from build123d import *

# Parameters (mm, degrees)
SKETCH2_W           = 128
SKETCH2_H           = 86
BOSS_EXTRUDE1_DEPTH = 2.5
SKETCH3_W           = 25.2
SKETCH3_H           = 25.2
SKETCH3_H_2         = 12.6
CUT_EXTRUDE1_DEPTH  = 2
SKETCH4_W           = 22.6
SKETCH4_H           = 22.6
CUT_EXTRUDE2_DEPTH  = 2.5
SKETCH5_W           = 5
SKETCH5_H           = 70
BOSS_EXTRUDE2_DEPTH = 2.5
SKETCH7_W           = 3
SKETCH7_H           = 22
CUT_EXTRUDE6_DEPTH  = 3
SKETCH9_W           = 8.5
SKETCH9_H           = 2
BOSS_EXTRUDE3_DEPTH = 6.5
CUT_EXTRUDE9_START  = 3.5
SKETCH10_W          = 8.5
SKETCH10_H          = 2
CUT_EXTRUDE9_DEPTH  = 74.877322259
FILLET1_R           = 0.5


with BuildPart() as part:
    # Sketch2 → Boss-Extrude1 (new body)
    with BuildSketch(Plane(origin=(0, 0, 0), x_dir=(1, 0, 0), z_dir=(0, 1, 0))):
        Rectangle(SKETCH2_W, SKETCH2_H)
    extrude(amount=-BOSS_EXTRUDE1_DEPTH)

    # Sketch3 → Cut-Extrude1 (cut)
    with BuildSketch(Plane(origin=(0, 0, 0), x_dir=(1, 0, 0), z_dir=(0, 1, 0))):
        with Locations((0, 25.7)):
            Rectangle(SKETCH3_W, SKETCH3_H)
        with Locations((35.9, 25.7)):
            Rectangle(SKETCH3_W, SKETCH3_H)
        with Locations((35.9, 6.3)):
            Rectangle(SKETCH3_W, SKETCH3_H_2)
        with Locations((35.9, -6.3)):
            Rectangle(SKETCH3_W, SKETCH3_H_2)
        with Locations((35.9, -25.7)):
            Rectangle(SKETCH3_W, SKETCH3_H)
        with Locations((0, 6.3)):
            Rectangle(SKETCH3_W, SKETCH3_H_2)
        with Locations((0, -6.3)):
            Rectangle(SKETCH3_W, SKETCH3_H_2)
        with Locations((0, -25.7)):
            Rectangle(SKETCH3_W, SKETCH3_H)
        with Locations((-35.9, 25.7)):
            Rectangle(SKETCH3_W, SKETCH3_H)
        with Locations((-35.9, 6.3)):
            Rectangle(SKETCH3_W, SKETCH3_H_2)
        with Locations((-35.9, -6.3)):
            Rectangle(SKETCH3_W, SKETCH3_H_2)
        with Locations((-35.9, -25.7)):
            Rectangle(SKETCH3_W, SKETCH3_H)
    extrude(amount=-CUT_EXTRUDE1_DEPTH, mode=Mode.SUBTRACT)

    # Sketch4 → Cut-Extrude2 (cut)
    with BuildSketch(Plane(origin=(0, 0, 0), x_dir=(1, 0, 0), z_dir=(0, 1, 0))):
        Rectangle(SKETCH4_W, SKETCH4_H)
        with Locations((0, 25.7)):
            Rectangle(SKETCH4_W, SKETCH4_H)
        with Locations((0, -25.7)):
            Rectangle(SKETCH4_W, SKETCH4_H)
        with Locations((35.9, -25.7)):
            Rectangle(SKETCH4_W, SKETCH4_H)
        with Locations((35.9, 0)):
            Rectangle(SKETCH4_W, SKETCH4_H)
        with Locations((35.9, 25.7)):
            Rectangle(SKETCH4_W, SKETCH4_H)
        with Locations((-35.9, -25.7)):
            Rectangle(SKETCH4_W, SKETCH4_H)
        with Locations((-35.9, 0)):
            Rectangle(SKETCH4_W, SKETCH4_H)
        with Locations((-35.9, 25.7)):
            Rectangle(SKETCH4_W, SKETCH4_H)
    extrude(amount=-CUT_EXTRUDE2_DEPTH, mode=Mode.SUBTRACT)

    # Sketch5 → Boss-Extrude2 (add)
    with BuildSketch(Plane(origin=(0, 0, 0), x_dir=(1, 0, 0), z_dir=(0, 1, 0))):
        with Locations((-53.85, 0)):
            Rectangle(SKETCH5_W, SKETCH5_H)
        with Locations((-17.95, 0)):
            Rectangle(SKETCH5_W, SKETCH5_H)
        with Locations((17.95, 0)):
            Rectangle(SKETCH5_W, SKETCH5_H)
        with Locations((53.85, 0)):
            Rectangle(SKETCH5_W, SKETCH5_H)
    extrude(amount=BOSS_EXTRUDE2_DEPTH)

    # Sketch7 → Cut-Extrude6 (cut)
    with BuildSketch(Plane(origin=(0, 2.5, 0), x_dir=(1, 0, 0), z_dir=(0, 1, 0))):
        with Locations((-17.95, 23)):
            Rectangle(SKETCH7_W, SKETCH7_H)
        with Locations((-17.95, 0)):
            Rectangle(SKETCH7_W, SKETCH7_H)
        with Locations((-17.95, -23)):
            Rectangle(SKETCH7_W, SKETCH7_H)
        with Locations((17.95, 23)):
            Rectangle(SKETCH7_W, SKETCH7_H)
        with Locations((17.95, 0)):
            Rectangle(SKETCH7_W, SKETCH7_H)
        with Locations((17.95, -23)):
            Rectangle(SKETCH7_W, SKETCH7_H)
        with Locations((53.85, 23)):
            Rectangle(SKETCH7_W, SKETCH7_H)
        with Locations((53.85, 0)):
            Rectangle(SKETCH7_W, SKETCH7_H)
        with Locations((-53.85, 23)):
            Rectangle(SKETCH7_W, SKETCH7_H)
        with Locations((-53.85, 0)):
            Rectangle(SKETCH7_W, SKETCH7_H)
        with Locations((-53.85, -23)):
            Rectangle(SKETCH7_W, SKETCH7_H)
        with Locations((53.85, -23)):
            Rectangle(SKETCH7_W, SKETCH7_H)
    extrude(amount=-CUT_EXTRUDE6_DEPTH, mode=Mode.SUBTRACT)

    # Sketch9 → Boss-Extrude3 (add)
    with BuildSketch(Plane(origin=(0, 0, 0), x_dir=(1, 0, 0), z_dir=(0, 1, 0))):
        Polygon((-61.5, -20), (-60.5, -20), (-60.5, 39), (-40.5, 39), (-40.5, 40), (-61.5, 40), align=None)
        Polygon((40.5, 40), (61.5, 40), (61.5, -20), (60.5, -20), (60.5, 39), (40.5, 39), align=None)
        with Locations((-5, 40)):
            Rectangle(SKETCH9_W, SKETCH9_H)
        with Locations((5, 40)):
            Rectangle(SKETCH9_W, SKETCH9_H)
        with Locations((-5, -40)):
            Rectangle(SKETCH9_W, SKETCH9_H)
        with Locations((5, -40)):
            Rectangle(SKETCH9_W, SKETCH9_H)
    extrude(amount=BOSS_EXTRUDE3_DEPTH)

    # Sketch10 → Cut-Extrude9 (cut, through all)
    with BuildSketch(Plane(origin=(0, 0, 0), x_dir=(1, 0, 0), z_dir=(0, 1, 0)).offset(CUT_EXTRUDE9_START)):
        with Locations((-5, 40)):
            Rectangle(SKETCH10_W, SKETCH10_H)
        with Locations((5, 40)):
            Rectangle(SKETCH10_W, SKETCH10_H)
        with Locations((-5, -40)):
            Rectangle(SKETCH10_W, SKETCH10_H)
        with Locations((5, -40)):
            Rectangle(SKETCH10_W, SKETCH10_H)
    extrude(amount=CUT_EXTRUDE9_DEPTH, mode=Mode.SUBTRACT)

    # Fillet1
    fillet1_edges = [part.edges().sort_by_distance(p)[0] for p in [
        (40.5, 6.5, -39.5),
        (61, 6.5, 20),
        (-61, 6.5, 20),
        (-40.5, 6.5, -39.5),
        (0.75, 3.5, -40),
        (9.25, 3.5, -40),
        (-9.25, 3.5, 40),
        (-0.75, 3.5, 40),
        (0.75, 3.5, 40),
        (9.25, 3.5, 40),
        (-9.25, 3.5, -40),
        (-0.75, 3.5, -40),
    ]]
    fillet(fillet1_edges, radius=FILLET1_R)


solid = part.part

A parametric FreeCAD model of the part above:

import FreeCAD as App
import Part
import Sketcher

V = App.Vector


def edges_at(feature, points):
    """Names of the edges that pass closest to the given points."""
    edges = feature.Shape.Edges
    near = lambda p: min(range(len(edges)), key=lambda i: edges[i].distToShape(Part.Vertex(*p))[0])
    return sorted({f"Edge{near(p) + 1}" for p in points})

doc = App.newDocument("Part")
body = doc.addObject("PartDesign::Body", "Body")

sketch1 = body.newObject("Sketcher::SketchObject", "Sketch")
sketch1.AttachmentSupport = (doc.getObject("XZ_Plane"), [""])
sketch1.MapMode = "FlatFace"
sketch1.addGeometry([
    Part.LineSegment(V(-64, -43, 0), V(-64, 43, 0)),
    Part.LineSegment(V(-64, 43, 0), V(64, 43, 0)),
    Part.LineSegment(V(64, 43, 0), V(64, -43, 0)),
    Part.LineSegment(V(64, -43, 0), V(-64, -43, 0)),
], False)
sketch1.addConstraint([
    Sketcher.Constraint("Coincident", 0, 2, 1, 1),
    Sketcher.Constraint("Coincident", 1, 2, 2, 1),
    Sketcher.Constraint("Coincident", 2, 2, 3, 1),
    Sketcher.Constraint("Coincident", 3, 2, 0, 1),
    Sketcher.Constraint("Vertical", 0),
    Sketcher.Constraint("Horizontal", 1),
    Sketcher.Constraint("Vertical", 2),
    Sketcher.Constraint("Horizontal", 3),
    Sketcher.Constraint("Symmetric", 0, 2, 2, 2, -1, 1),
    Sketcher.Constraint("DistanceX", 1, 1, 1, 2, 128.0),
    Sketcher.Constraint("DistanceY", 0, 1, 0, 2, 86.0),
])
pad1 = body.newObject("PartDesign::Pad", "Pad")
pad1.Profile = sketch1
pad1.Length = 2.5

sketch2 = body.newObject("Sketcher::SketchObject", "Sketch001")
sketch2.AttachmentSupport = (doc.getObject("XZ_Plane"), [""])
sketch2.MapMode = "FlatFace"
sketch2.addGeometry([
    Part.LineSegment(V(-12.6, -38.3, 0), V(-12.6, -13.1, 0)),
    Part.LineSegment(V(-12.6, -13.1, 0), V(12.6, -13.1, 0)),
    Part.LineSegment(V(12.6, -13.1, 0), V(12.6, -38.3, 0)),
    Part.LineSegment(V(12.6, -38.3, 0), V(-12.6, -38.3, 0)),
    Part.LineSegment(V(23.3, -38.3, 0), V(23.3, -13.1, 0)),
    Part.LineSegment(V(23.3, -13.1, 0), V(48.5, -13.1, 0)),
    Part.LineSegment(V(48.5, -13.1, 0), V(48.5, -38.3, 0)),
    Part.LineSegment(V(48.5, -38.3, 0), V(23.3, -38.3, 0)),
    Part.LineSegment(V(23.3, -12.6, 0), V(23.3, 12.6, 0)),
    Part.LineSegment(V(23.3, 12.6, 0), V(48.5, 12.6, 0)),
    Part.LineSegment(V(48.5, 12.6, 0), V(48.5, -12.6, 0)),
    Part.LineSegment(V(48.5, -12.6, 0), V(23.3, -12.6, 0)),
    Part.LineSegment(V(23.3, 13.1, 0), V(23.3, 38.3, 0)),
    Part.LineSegment(V(23.3, 38.3, 0), V(48.5, 38.3, 0)),
    Part.LineSegment(V(48.5, 38.3, 0), V(48.5, 13.1, 0)),
    Part.LineSegment(V(48.5, 13.1, 0), V(23.3, 13.1, 0)),
    Part.LineSegment(V(-12.6, -12.6, 0), V(-12.6, 12.6, 0)),
    Part.LineSegment(V(-12.6, 12.6, 0), V(12.6, 12.6, 0)),
    Part.LineSegment(V(12.6, 12.6, 0), V(12.6, -12.6, 0)),
    Part.LineSegment(V(12.6, -12.6, 0), V(-12.6, -12.6, 0)),
    Part.LineSegment(V(-12.6, 13.1, 0), V(-12.6, 38.3, 0)),
    Part.LineSegment(V(-12.6, 38.3, 0), V(12.6, 38.3, 0)),
    Part.LineSegment(V(12.6, 38.3, 0), V(12.6, 13.1, 0)),
    Part.LineSegment(V(12.6, 13.1, 0), V(-12.6, 13.1, 0)),
    Part.LineSegment(V(-48.5, -38.3, 0), V(-48.5, -13.1, 0)),
    Part.LineSegment(V(-48.5, -13.1, 0), V(-23.3, -13.1, 0)),
    Part.LineSegment(V(-23.3, -13.1, 0), V(-23.3, -38.3, 0)),
    Part.LineSegment(V(-23.3, -38.3, 0), V(-48.5, -38.3, 0)),
    Part.LineSegment(V(-48.5, -12.6, 0), V(-48.5, 12.6, 0)),
    Part.LineSegment(V(-48.5, 12.6, 0), V(-23.3, 12.6, 0)),
    Part.LineSegment(V(-23.3, 12.6, 0), V(-23.3, -12.6, 0)),
    Part.LineSegment(V(-23.3, -12.6, 0), V(-48.5, -12.6, 0)),
    Part.LineSegment(V(-48.5, 13.1, 0), V(-48.5, 38.3, 0)),
    Part.LineSegment(V(-48.5, 38.3, 0), V(-23.3, 38.3, 0)),
    Part.LineSegment(V(-23.3, 38.3, 0), V(-23.3, 13.1, 0)),
    Part.LineSegment(V(-23.3, 13.1, 0), V(-48.5, 13.1, 0)),
], False)
sketch2.addConstraint([
    Sketcher.Constraint("Coincident", 0, 2, 1, 1),
    Sketcher.Constraint("Coincident", 1, 2, 2, 1),
    Sketcher.Constraint("Coincident", 2, 2, 3, 1),
    Sketcher.Constraint("Coincident", 3, 2, 0, 1),
    Sketcher.Constraint("Coincident", 4, 2, 5, 1),
    Sketcher.Constraint("Coincident", 5, 2, 6, 1),
    Sketcher.Constraint("Coincident", 6, 2, 7, 1),
    Sketcher.Constraint("Coincident", 7, 2, 4, 1),
    Sketcher.Constraint("Coincident", 8, 2, 9, 1),
    Sketcher.Constraint("Coincident", 9, 2, 10, 1),
    Sketcher.Constraint("Coincident", 10, 2, 11, 1),
    Sketcher.Constraint("Coincident", 11, 2, 8, 1),
    Sketcher.Constraint("Coincident", 12, 2, 13, 1),
    Sketcher.Constraint("Coincident", 13, 2, 14, 1),
    Sketcher.Constraint("Coincident", 14, 2, 15, 1),
    Sketcher.Constraint("Coincident", 15, 2, 12, 1),
    Sketcher.Constraint("Coincident", 16, 2, 17, 1),
    Sketcher.Constraint("Coincident", 17, 2, 18, 1),
    Sketcher.Constraint("Coincident", 18, 2, 19, 1),
    Sketcher.Constraint("Coincident", 19, 2, 16, 1),
    Sketcher.Constraint("Coincident", 20, 2, 21, 1),
    Sketcher.Constraint("Coincident", 21, 2, 22, 1),
    Sketcher.Constraint("Coincident", 22, 2, 23, 1),
    Sketcher.Constraint("Coincident", 23, 2, 20, 1),
    Sketcher.Constraint("Coincident", 24, 2, 25, 1),
    Sketcher.Constraint("Coincident", 25, 2, 26, 1),
    Sketcher.Constraint("Coincident", 26, 2, 27, 1),
    Sketcher.Constraint("Coincident", 27, 2, 24, 1),
    Sketcher.Constraint("Coincident", 28, 2, 29, 1),
    Sketcher.Constraint("Coincident", 29, 2, 30, 1),
    Sketcher.Constraint("Coincident", 30, 2, 31, 1),
    Sketcher.Constraint("Coincident", 31, 2, 28, 1),
    Sketcher.Constraint("Coincident", 32, 2, 33, 1),
    Sketcher.Constraint("Coincident", 33, 2, 34, 1),
    Sketcher.Constraint("Coincident", 34, 2, 35, 1),
    Sketcher.Constraint("Coincident", 35, 2, 32, 1),
    Sketcher.Constraint("Vertical", 0),
    Sketcher.Constraint("Horizontal", 1),
    Sketcher.Constraint("Vertical", 2),
    Sketcher.Constraint("Horizontal", 3),
    Sketcher.Constraint("Vertical", 4),
    Sketcher.Constraint("Horizontal", 5),
    Sketcher.Constraint("Vertical", 6),
    Sketcher.Constraint("Horizontal", 7),
    Sketcher.Constraint("Vertical", 8),
    Sketcher.Constraint("Horizontal", 9),
    Sketcher.Constraint("Vertical", 10),
    Sketcher.Constraint("Horizontal", 11),
    Sketcher.Constraint("Vertical", 12),
    Sketcher.Constraint("Horizontal", 13),
    Sketcher.Constraint("Vertical", 14),
    Sketcher.Constraint("Horizontal", 15),
    Sketcher.Constraint("Vertical", 16),
    Sketcher.Constraint("Horizontal", 17),
    Sketcher.Constraint("Vertical", 18),
    Sketcher.Constraint("Horizontal", 19),
    Sketcher.Constraint("Vertical", 20),
    Sketcher.Constraint("Horizontal", 21),
    Sketcher.Constraint("Vertical", 22),
    Sketcher.Constraint("Horizontal", 23),
    Sketcher.Constraint("Vertical", 24),
    Sketcher.Constraint("Horizontal", 25),
    Sketcher.Constraint("Vertical", 26),
    Sketcher.Constraint("Horizontal", 27),
    Sketcher.Constraint("Vertical", 28),
    Sketcher.Constraint("Horizontal", 29),
    Sketcher.Constraint("Vertical", 30),
    Sketcher.Constraint("Horizontal", 31),
    Sketcher.Constraint("Vertical", 32),
    Sketcher.Constraint("Horizontal", 33),
    Sketcher.Constraint("Vertical", 34),
    Sketcher.Constraint("Horizontal", 35),
    Sketcher.Constraint("Symmetric", 16, 2, 18, 2, -1, 1),
    Sketcher.Constraint("Symmetric", 2, 2, 20, 2, -1, 1),
    Sketcher.Constraint("Symmetric", 0, 2, 22, 2, -1, 1),
    Sketcher.Constraint("Symmetric", 14, 2, 24, 2, -1, 1),
    Sketcher.Constraint("Symmetric", 12, 2, 26, 2, -1, 1),
    Sketcher.Constraint("Symmetric", 10, 2, 28, 2, -1, 1),
    Sketcher.Constraint("Symmetric", 8, 2, 30, 2, -1, 1),
    Sketcher.Constraint("Symmetric", 6, 2, 32, 2, -1, 1),
    Sketcher.Constraint("Symmetric", 4, 2, 34, 2, -1, 1),
    Sketcher.Constraint("Symmetric", 5, 2, 24, 2, -2),
    Sketcher.Constraint("Symmetric", 7, 2, 26, 2, -2),
    Sketcher.Constraint("Horizontal", 1, 2, 4, 2),
    Sketcher.Constraint("Horizontal", 3, 2, 6, 2),
    Sketcher.Constraint("Horizontal", 9, 2, 16, 2),
    Sketcher.Constraint("Horizontal", 11, 2, 18, 2),
    Sketcher.Constraint("Vertical", 7, 2, 8, 2),
    Sketcher.Constraint("Vertical", 6, 2, 9, 2),
    Sketcher.Constraint("Vertical", 3, 2, 16, 2),
    Sketcher.Constraint("Vertical", 2, 2, 17, 2),
    Sketcher.Constraint("Equal", 3, 5),
    Sketcher.Constraint("Equal", 35, 0),
    Sketcher.Constraint("Equal", 6, 8),
    Sketcher.Constraint("DistanceX", 1, 1, 1, 2, 25.2),
    Sketcher.Constraint("DistanceY", 0, 2, -1, 1, 13.1),
    Sketcher.Constraint("DistanceX", -1, 1, 4, 2, 23.3),
])
pocket1 = body.newObject("PartDesign::Pocket", "Pocket")
pocket1.Profile = sketch2
pocket1.Length = 2
pocket1.Reversed = True

sketch3 = body.newObject("Sketcher::SketchObject", "Sketch002")
sketch3.AttachmentSupport = (doc.getObject("XZ_Plane"), [""])
sketch3.MapMode = "FlatFace"
sketch3.addGeometry([
    Part.LineSegment(V(-11.3, -11.3, 0), V(-11.3, 11.3, 0)),
    Part.LineSegment(V(-11.3, 11.3, 0), V(11.3, 11.3, 0)),
    Part.LineSegment(V(11.3, 11.3, 0), V(11.3, -11.3, 0)),
    Part.LineSegment(V(11.3, -11.3, 0), V(-11.3, -11.3, 0)),
    Part.LineSegment(V(-11.3, -37, 0), V(-11.3, -14.4, 0)),
    Part.LineSegment(V(-11.3, -14.4, 0), V(11.3, -14.4, 0)),
    Part.LineSegment(V(11.3, -14.4, 0), V(11.3, -37, 0)),
    Part.LineSegment(V(11.3, -37, 0), V(-11.3, -37, 0)),
    Part.LineSegment(V(-11.3, 14.4, 0), V(-11.3, 37, 0)),
    Part.LineSegment(V(-11.3, 37, 0), V(11.3, 37, 0)),
    Part.LineSegment(V(11.3, 37, 0), V(11.3, 14.4, 0)),
    Part.LineSegment(V(11.3, 14.4, 0), V(-11.3, 14.4, 0)),
    Part.LineSegment(V(24.6, 14.4, 0), V(24.6, 37, 0)),
    Part.LineSegment(V(24.6, 37, 0), V(47.2, 37, 0)),
    Part.LineSegment(V(47.2, 37, 0), V(47.2, 14.4, 0)),
    Part.LineSegment(V(47.2, 14.4, 0), V(24.6, 14.4, 0)),
    Part.LineSegment(V(24.6, -11.3, 0), V(24.6, 11.3, 0)),
    Part.LineSegment(V(24.6, 11.3, 0), V(47.2, 11.3, 0)),
    Part.LineSegment(V(47.2, 11.3, 0), V(47.2, -11.3, 0)),
    Part.LineSegment(V(47.2, -11.3, 0), V(24.6, -11.3, 0)),
    Part.LineSegment(V(24.6, -37, 0), V(24.6, -14.4, 0)),
    Part.LineSegment(V(24.6, -14.4, 0), V(47.2, -14.4, 0)),
    Part.LineSegment(V(47.2, -14.4, 0), V(47.2, -37, 0)),
    Part.LineSegment(V(47.2, -37, 0), V(24.6, -37, 0)),
    Part.LineSegment(V(-47.2, 14.4, 0), V(-47.2, 37, 0)),
    Part.LineSegment(V(-47.2, 37, 0), V(-24.6, 37, 0)),
    Part.LineSegment(V(-24.6, 37, 0), V(-24.6, 14.4, 0)),
    Part.LineSegment(V(-24.6, 14.4, 0), V(-47.2, 14.4, 0)),
    Part.LineSegment(V(-47.2, -11.3, 0), V(-47.2, 11.3, 0)),
    Part.LineSegment(V(-47.2, 11.3, 0), V(-24.6, 11.3, 0)),
    Part.LineSegment(V(-24.6, 11.3, 0), V(-24.6, -11.3, 0)),
    Part.LineSegment(V(-24.6, -11.3, 0), V(-47.2, -11.3, 0)),
    Part.LineSegment(V(-47.2, -37, 0), V(-47.2, -14.4, 0)),
    Part.LineSegment(V(-47.2, -14.4, 0), V(-24.6, -14.4, 0)),
    Part.LineSegment(V(-24.6, -14.4, 0), V(-24.6, -37, 0)),
    Part.LineSegment(V(-24.6, -37, 0), V(-47.2, -37, 0)),
], False)
sketch3.addConstraint([
    Sketcher.Constraint("Coincident", 0, 2, 1, 1),
    Sketcher.Constraint("Coincident", 1, 2, 2, 1),
    Sketcher.Constraint("Coincident", 2, 2, 3, 1),
    Sketcher.Constraint("Coincident", 3, 2, 0, 1),
    Sketcher.Constraint("Coincident", 4, 2, 5, 1),
    Sketcher.Constraint("Coincident", 5, 2, 6, 1),
    Sketcher.Constraint("Coincident", 6, 2, 7, 1),
    Sketcher.Constraint("Coincident", 7, 2, 4, 1),
    Sketcher.Constraint("Coincident", 8, 2, 9, 1),
    Sketcher.Constraint("Coincident", 9, 2, 10, 1),
    Sketcher.Constraint("Coincident", 10, 2, 11, 1),
    Sketcher.Constraint("Coincident", 11, 2, 8, 1),
    Sketcher.Constraint("Coincident", 12, 2, 13, 1),
    Sketcher.Constraint("Coincident", 13, 2, 14, 1),
    Sketcher.Constraint("Coincident", 14, 2, 15, 1),
    Sketcher.Constraint("Coincident", 15, 2, 12, 1),
    Sketcher.Constraint("Coincident", 16, 2, 17, 1),
    Sketcher.Constraint("Coincident", 17, 2, 18, 1),
    Sketcher.Constraint("Coincident", 18, 2, 19, 1),
    Sketcher.Constraint("Coincident", 19, 2, 16, 1),
    Sketcher.Constraint("Coincident", 20, 2, 21, 1),
    Sketcher.Constraint("Coincident", 21, 2, 22, 1),
    Sketcher.Constraint("Coincident", 22, 2, 23, 1),
    Sketcher.Constraint("Coincident", 23, 2, 20, 1),
    Sketcher.Constraint("Coincident", 24, 2, 25, 1),
    Sketcher.Constraint("Coincident", 25, 2, 26, 1),
    Sketcher.Constraint("Coincident", 26, 2, 27, 1),
    Sketcher.Constraint("Coincident", 27, 2, 24, 1),
    Sketcher.Constraint("Coincident", 28, 2, 29, 1),
    Sketcher.Constraint("Coincident", 29, 2, 30, 1),
    Sketcher.Constraint("Coincident", 30, 2, 31, 1),
    Sketcher.Constraint("Coincident", 31, 2, 28, 1),
    Sketcher.Constraint("Coincident", 32, 2, 33, 1),
    Sketcher.Constraint("Coincident", 33, 2, 34, 1),
    Sketcher.Constraint("Coincident", 34, 2, 35, 1),
    Sketcher.Constraint("Coincident", 35, 2, 32, 1),
    Sketcher.Constraint("Vertical", 0),
    Sketcher.Constraint("Horizontal", 1),
    Sketcher.Constraint("Vertical", 2),
    Sketcher.Constraint("Horizontal", 3),
    Sketcher.Constraint("Vertical", 4),
    Sketcher.Constraint("Horizontal", 5),
    Sketcher.Constraint("Vertical", 6),
    Sketcher.Constraint("Horizontal", 7),
    Sketcher.Constraint("Vertical", 8),
    Sketcher.Constraint("Horizontal", 9),
    Sketcher.Constraint("Vertical", 10),
    Sketcher.Constraint("Horizontal", 11),
    Sketcher.Constraint("Vertical", 12),
    Sketcher.Constraint("Horizontal", 13),
    Sketcher.Constraint("Vertical", 14),
    Sketcher.Constraint("Horizontal", 15),
    Sketcher.Constraint("Vertical", 16),
    Sketcher.Constraint("Horizontal", 17),
    Sketcher.Constraint("Vertical", 18),
    Sketcher.Constraint("Horizontal", 19),
    Sketcher.Constraint("Vertical", 20),
    Sketcher.Constraint("Horizontal", 21),
    Sketcher.Constraint("Vertical", 22),
    Sketcher.Constraint("Horizontal", 23),
    Sketcher.Constraint("Vertical", 24),
    Sketcher.Constraint("Horizontal", 25),
    Sketcher.Constraint("Vertical", 26),
    Sketcher.Constraint("Horizontal", 27),
    Sketcher.Constraint("Vertical", 28),
    Sketcher.Constraint("Horizontal", 29),
    Sketcher.Constraint("Vertical", 30),
    Sketcher.Constraint("Horizontal", 31),
    Sketcher.Constraint("Vertical", 32),
    Sketcher.Constraint("Horizontal", 33),
    Sketcher.Constraint("Vertical", 34),
    Sketcher.Constraint("Horizontal", 35),
    Sketcher.Constraint("Symmetric", 0, 2, 2, 2, -1, 1),
    Sketcher.Constraint("Symmetric", 6, 2, 8, 2, -1, 1),
    Sketcher.Constraint("Symmetric", 4, 2, 10, 2, -1, 1),
    Sketcher.Constraint("Symmetric", 22, 2, 24, 2, -1, 1),
    Sketcher.Constraint("Symmetric", 20, 2, 26, 2, -1, 1),
    Sketcher.Constraint("Symmetric", 18, 2, 28, 2, -1, 1),
    Sketcher.Constraint("Symmetric", 16, 2, 30, 2, -1, 1),
    Sketcher.Constraint("Symmetric", 14, 2, 32, 2, -1, 1),
    Sketcher.Constraint("Symmetric", 12, 2, 34, 2, -1, 1),
    Sketcher.Constraint("Symmetric", 13, 2, 24, 2, -2),
    Sketcher.Constraint("Symmetric", 15, 2, 26, 2, -2),
    Sketcher.Constraint("Horizontal", 9, 2, 12, 2),
    Sketcher.Constraint("Horizontal", 11, 2, 14, 2),
    Sketcher.Constraint("Horizontal", 1, 2, 16, 2),
    Sketcher.Constraint("Horizontal", 3, 2, 18, 2),
    Sketcher.Constraint("Vertical", 3, 2, 4, 2),
    Sketcher.Constraint("Vertical", 2, 2, 5, 2),
    Sketcher.Constraint("Vertical", 15, 2, 16, 2),
    Sketcher.Constraint("Vertical", 14, 2, 17, 2),
    Sketcher.Constraint("Equal", 11, 13),
    Sketcher.Constraint("Equal", 35, 0),
    Sketcher.Constraint("Equal", 2, 4),
    Sketcher.Constraint("DistanceX", 1, 1, 1, 2, 22.6),
    Sketcher.Constraint("DistanceY", 6, 2, -1, 1, 37.0),
    Sketcher.Constraint("DistanceX", -1, 1, 12, 2, 24.6),
])
pocket2 = body.newObject("PartDesign::Pocket", "Pocket001")
pocket2.Profile = sketch3
pocket2.Length = 2.5
pocket2.Reversed = True

sketch4 = body.newObject("Sketcher::SketchObject", "Sketch003")
sketch4.AttachmentSupport = (doc.getObject("XZ_Plane"), [""])
sketch4.MapMode = "FlatFace"
sketch4.addGeometry([
    Part.LineSegment(V(-56.35, -35, 0), V(-56.35, 35, 0)),
    Part.LineSegment(V(-56.35, 35, 0), V(-51.35, 35, 0)),
    Part.LineSegment(V(-51.35, 35, 0), V(-51.35, -35, 0)),
    Part.LineSegment(V(-51.35, -35, 0), V(-56.35, -35, 0)),
    Part.LineSegment(V(-20.45, -35, 0), V(-20.45, 35, 0)),
    Part.LineSegment(V(-20.45, 35, 0), V(-15.45, 35, 0)),
    Part.LineSegment(V(-15.45, 35, 0), V(-15.45, -35, 0)),
    Part.LineSegment(V(-15.45, -35, 0), V(-20.45, -35, 0)),
    Part.LineSegment(V(15.45, -35, 0), V(15.45, 35, 0)),
    Part.LineSegment(V(15.45, 35, 0), V(20.45, 35, 0)),
    Part.LineSegment(V(20.45, 35, 0), V(20.45, -35, 0)),
    Part.LineSegment(V(20.45, -35, 0), V(15.45, -35, 0)),
    Part.LineSegment(V(51.35, -35, 0), V(51.35, 35, 0)),
    Part.LineSegment(V(51.35, 35, 0), V(56.35, 35, 0)),
    Part.LineSegment(V(56.35, 35, 0), V(56.35, -35, 0)),
    Part.LineSegment(V(56.35, -35, 0), V(51.35, -35, 0)),
], False)
sketch4.addConstraint([
    Sketcher.Constraint("Coincident", 0, 2, 1, 1),
    Sketcher.Constraint("Coincident", 1, 2, 2, 1),
    Sketcher.Constraint("Coincident", 2, 2, 3, 1),
    Sketcher.Constraint("Coincident", 3, 2, 0, 1),
    Sketcher.Constraint("Coincident", 4, 2, 5, 1),
    Sketcher.Constraint("Coincident", 5, 2, 6, 1),
    Sketcher.Constraint("Coincident", 6, 2, 7, 1),
    Sketcher.Constraint("Coincident", 7, 2, 4, 1),
    Sketcher.Constraint("Coincident", 8, 2, 9, 1),
    Sketcher.Constraint("Coincident", 9, 2, 10, 1),
    Sketcher.Constraint("Coincident", 10, 2, 11, 1),
    Sketcher.Constraint("Coincident", 11, 2, 8, 1),
    Sketcher.Constraint("Coincident", 12, 2, 13, 1),
    Sketcher.Constraint("Coincident", 13, 2, 14, 1),
    Sketcher.Constraint("Coincident", 14, 2, 15, 1),
    Sketcher.Constraint("Coincident", 15, 2, 12, 1),
    Sketcher.Constraint("Vertical", 0),
    Sketcher.Constraint("Horizontal", 1),
    Sketcher.Constraint("Vertical", 2),
    Sketcher.Constraint("Horizontal", 3),
    Sketcher.Constraint("Vertical", 4),
    Sketcher.Constraint("Horizontal", 5),
    Sketcher.Constraint("Vertical", 6),
    Sketcher.Constraint("Horizontal", 7),
    Sketcher.Constraint("Vertical", 8),
    Sketcher.Constraint("Horizontal", 9),
    Sketcher.Constraint("Vertical", 10),
    Sketcher.Constraint("Horizontal", 11),
    Sketcher.Constraint("Vertical", 12),
    Sketcher.Constraint("Horizontal", 13),
    Sketcher.Constraint("Vertical", 14),
    Sketcher.Constraint("Horizontal", 15),
    Sketcher.Constraint("Symmetric", 6, 2, 8, 2, -1, 1),
    Sketcher.Constraint("Symmetric", 4, 2, 10, 2, -1, 1),
    Sketcher.Constraint("Symmetric", 2, 2, 12, 2, -1, 1),
    Sketcher.Constraint("Symmetric", 0, 2, 14, 2, -1, 1),
    Sketcher.Constraint("Horizontal", 1, 2, 4, 2),
    Sketcher.Constraint("Horizontal", 3, 2, 6, 2),
    Sketcher.Constraint("Horizontal", 5, 2, 8, 2),
    Sketcher.Constraint("Equal", 3, 5),
    Sketcher.Constraint("DistanceX", 1, 1, 1, 2, 5.0),
    Sketcher.Constraint("DistanceY", 0, 1, 0, 2, 70.0),
    Sketcher.Constraint("DistanceX", 1, 2, 4, 2, 30.9),
    Sketcher.Constraint("DistanceX", 5, 2, 8, 2, 30.9),
])
pad2 = body.newObject("PartDesign::Pad", "Pad001")
pad2.Profile = sketch4
pad2.Length = 2.5
pad2.Reversed = True

sketch5 = body.newObject("Sketcher::SketchObject", "Sketch004")
sketch5.AttachmentSupport = (doc.getObject("XZ_Plane"), [""])
sketch5.MapMode = "FlatFace"
sketch5.AttachmentOffset = App.Placement(V(0, 0, -2.5), App.Rotation())
sketch5.addGeometry([
    Part.LineSegment(V(-19.45, -34, 0), V(-19.45, -12, 0)),
    Part.LineSegment(V(-19.45, -12, 0), V(-16.45, -12, 0)),
    Part.LineSegment(V(-16.45, -12, 0), V(-16.45, -34, 0)),
    Part.LineSegment(V(-16.45, -34, 0), V(-19.45, -34, 0)),
    Part.LineSegment(V(-19.45, -11, 0), V(-19.45, 11, 0)),
    Part.LineSegment(V(-19.45, 11, 0), V(-16.45, 11, 0)),
    Part.LineSegment(V(-16.45, 11, 0), V(-16.45, -11, 0)),
    Part.LineSegment(V(-16.45, -11, 0), V(-19.45, -11, 0)),
    Part.LineSegment(V(-19.45, 12, 0), V(-19.45, 34, 0)),
    Part.LineSegment(V(-19.45, 34, 0), V(-16.45, 34, 0)),
    Part.LineSegment(V(-16.45, 34, 0), V(-16.45, 12, 0)),
    Part.LineSegment(V(-16.45, 12, 0), V(-19.45, 12, 0)),
    Part.LineSegment(V(16.45, -34, 0), V(16.45, -12, 0)),
    Part.LineSegment(V(16.45, -12, 0), V(19.45, -12, 0)),
    Part.LineSegment(V(19.45, -12, 0), V(19.45, -34, 0)),
    Part.LineSegment(V(19.45, -34, 0), V(16.45, -34, 0)),
    Part.LineSegment(V(16.45, -11, 0), V(16.45, 11, 0)),
    Part.LineSegment(V(16.45, 11, 0), V(19.45, 11, 0)),
    Part.LineSegment(V(19.45, 11, 0), V(19.45, -11, 0)),
    Part.LineSegment(V(19.45, -11, 0), V(16.45, -11, 0)),
    Part.LineSegment(V(16.45, 12, 0), V(16.45, 34, 0)),
    Part.LineSegment(V(16.45, 34, 0), V(19.45, 34, 0)),
    Part.LineSegment(V(19.45, 34, 0), V(19.45, 12, 0)),
    Part.LineSegment(V(19.45, 12, 0), V(16.45, 12, 0)),
    Part.LineSegment(V(52.35, -34, 0), V(52.35, -12, 0)),
    Part.LineSegment(V(52.35, -12, 0), V(55.35, -12, 0)),
    Part.LineSegment(V(55.35, -12, 0), V(55.35, -34, 0)),
    Part.LineSegment(V(55.35, -34, 0), V(52.35, -34, 0)),
    Part.LineSegment(V(52.35, -11, 0), V(52.35, 11, 0)),
    Part.LineSegment(V(52.35, 11, 0), V(55.35, 11, 0)),
    Part.LineSegment(V(55.35, 11, 0), V(55.35, -11, 0)),
    Part.LineSegment(V(55.35, -11, 0), V(52.35, -11, 0)),
    Part.LineSegment(V(-55.35, -34, 0), V(-55.35, -12, 0)),
    Part.LineSegment(V(-55.35, -12, 0), V(-52.35, -12, 0)),
    Part.LineSegment(V(-52.35, -12, 0), V(-52.35, -34, 0)),
    Part.LineSegment(V(-52.35, -34, 0), V(-55.35, -34, 0)),
    Part.LineSegment(V(-55.35, -11, 0), V(-55.35, 11, 0)),
    Part.LineSegment(V(-55.35, 11, 0), V(-52.35, 11, 0)),
    Part.LineSegment(V(-52.35, 11, 0), V(-52.35, -11, 0)),
    Part.LineSegment(V(-52.35, -11, 0), V(-55.35, -11, 0)),
    Part.LineSegment(V(-55.35, 12, 0), V(-55.35, 34, 0)),
    Part.LineSegment(V(-55.35, 34, 0), V(-52.35, 34, 0)),
    Part.LineSegment(V(-52.35, 34, 0), V(-52.35, 12, 0)),
    Part.LineSegment(V(-52.35, 12, 0), V(-55.35, 12, 0)),
    Part.LineSegment(V(52.35, 12, 0), V(52.35, 34, 0)),
    Part.LineSegment(V(52.35, 34, 0), V(55.35, 34, 0)),
    Part.LineSegment(V(55.35, 34, 0), V(55.35, 12, 0)),
    Part.LineSegment(V(55.35, 12, 0), V(52.35, 12, 0)),
], False)
sketch5.addConstraint([
    Sketcher.Constraint("Coincident", 0, 2, 1, 1),
    Sketcher.Constraint("Coincident", 1, 2, 2, 1),
    Sketcher.Constraint("Coincident", 2, 2, 3, 1),
    Sketcher.Constraint("Coincident", 3, 2, 0, 1),
    Sketcher.Constraint("Coincident", 4, 2, 5, 1),
    Sketcher.Constraint("Coincident", 5, 2, 6, 1),
    Sketcher.Constraint("Coincident", 6, 2, 7, 1),
    Sketcher.Constraint("Coincident", 7, 2, 4, 1),
    Sketcher.Constraint("Coincident", 8, 2, 9, 1),
    Sketcher.Constraint("Coincident", 9, 2, 10, 1),
    Sketcher.Constraint("Coincident", 10, 2, 11, 1),
    Sketcher.Constraint("Coincident", 11, 2, 8, 1),
    Sketcher.Constraint("Coincident", 12, 2, 13, 1),
    Sketcher.Constraint("Coincident", 13, 2, 14, 1),
    Sketcher.Constraint("Coincident", 14, 2, 15, 1),
    Sketcher.Constraint("Coincident", 15, 2, 12, 1),
    Sketcher.Constraint("Coincident", 16, 2, 17, 1),
    Sketcher.Constraint("Coincident", 17, 2, 18, 1),
    Sketcher.Constraint("Coincident", 18, 2, 19, 1),
    Sketcher.Constraint("Coincident", 19, 2, 16, 1),
    Sketcher.Constraint("Coincident", 20, 2, 21, 1),
    Sketcher.Constraint("Coincident", 21, 2, 22, 1),
    Sketcher.Constraint("Coincident", 22, 2, 23, 1),
    Sketcher.Constraint("Coincident", 23, 2, 20, 1),
    Sketcher.Constraint("Coincident", 24, 2, 25, 1),
    Sketcher.Constraint("Coincident", 25, 2, 26, 1),
    Sketcher.Constraint("Coincident", 26, 2, 27, 1),
    Sketcher.Constraint("Coincident", 27, 2, 24, 1),
    Sketcher.Constraint("Coincident", 28, 2, 29, 1),
    Sketcher.Constraint("Coincident", 29, 2, 30, 1),
    Sketcher.Constraint("Coincident", 30, 2, 31, 1),
    Sketcher.Constraint("Coincident", 31, 2, 28, 1),
    Sketcher.Constraint("Coincident", 32, 2, 33, 1),
    Sketcher.Constraint("Coincident", 33, 2, 34, 1),
    Sketcher.Constraint("Coincident", 34, 2, 35, 1),
    Sketcher.Constraint("Coincident", 35, 2, 32, 1),
    Sketcher.Constraint("Coincident", 36, 2, 37, 1),
    Sketcher.Constraint("Coincident", 37, 2, 38, 1),
    Sketcher.Constraint("Coincident", 38, 2, 39, 1),
    Sketcher.Constraint("Coincident", 39, 2, 36, 1),
    Sketcher.Constraint("Coincident", 40, 2, 41, 1),
    Sketcher.Constraint("Coincident", 41, 2, 42, 1),
    Sketcher.Constraint("Coincident", 42, 2, 43, 1),
    Sketcher.Constraint("Coincident", 43, 2, 40, 1),
    Sketcher.Constraint("Coincident", 44, 2, 45, 1),
    Sketcher.Constraint("Coincident", 45, 2, 46, 1),
    Sketcher.Constraint("Coincident", 46, 2, 47, 1),
    Sketcher.Constraint("Coincident", 47, 2, 44, 1),
    Sketcher.Constraint("Vertical", 0),
    Sketcher.Constraint("Horizontal", 1),
    Sketcher.Constraint("Vertical", 2),
    Sketcher.Constraint("Horizontal", 3),
    Sketcher.Constraint("Vertical", 4),
    Sketcher.Constraint("Horizontal", 5),
    Sketcher.Constraint("Vertical", 6),
    Sketcher.Constraint("Horizontal", 7),
    Sketcher.Constraint("Vertical", 8),
    Sketcher.Constraint("Horizontal", 9),
    Sketcher.Constraint("Vertical", 10),
    Sketcher.Constraint("Horizontal", 11),
    Sketcher.Constraint("Vertical", 12),
    Sketcher.Constraint("Horizontal", 13),
    Sketcher.Constraint("Vertical", 14),
    Sketcher.Constraint("Horizontal", 15),
    Sketcher.Constraint("Vertical", 16),
    Sketcher.Constraint("Horizontal", 17),
    Sketcher.Constraint("Vertical", 18),
    Sketcher.Constraint("Horizontal", 19),
    Sketcher.Constraint("Vertical", 20),
    Sketcher.Constraint("Horizontal", 21),
    Sketcher.Constraint("Vertical", 22),
    Sketcher.Constraint("Horizontal", 23),
    Sketcher.Constraint("Vertical", 24),
    Sketcher.Constraint("Horizontal", 25),
    Sketcher.Constraint("Vertical", 26),
    Sketcher.Constraint("Horizontal", 27),
    Sketcher.Constraint("Vertical", 28),
    Sketcher.Constraint("Horizontal", 29),
    Sketcher.Constraint("Vertical", 30),
    Sketcher.Constraint("Horizontal", 31),
    Sketcher.Constraint("Vertical", 32),
    Sketcher.Constraint("Horizontal", 33),
    Sketcher.Constraint("Vertical", 34),
    Sketcher.Constraint("Horizontal", 35),
    Sketcher.Constraint("Vertical", 36),
    Sketcher.Constraint("Horizontal", 37),
    Sketcher.Constraint("Vertical", 38),
    Sketcher.Constraint("Horizontal", 39),
    Sketcher.Constraint("Vertical", 40),
    Sketcher.Constraint("Horizontal", 41),
    Sketcher.Constraint("Vertical", 42),
    Sketcher.Constraint("Horizontal", 43),
    Sketcher.Constraint("Vertical", 44),
    Sketcher.Constraint("Horizontal", 45),
    Sketcher.Constraint("Vertical", 46),
    Sketcher.Constraint("Horizontal", 47),
    Sketcher.Constraint("Symmetric", 10, 2, 12, 2, -1, 1),
    Sketcher.Constraint("Symmetric", 8, 2, 14, 2, -1, 1),
    Sketcher.Constraint("Symmetric", 6, 2, 16, 2, -1, 1),
    Sketcher.Constraint("Symmetric", 4, 2, 18, 2, -1, 1),
    Sketcher.Constraint("Symmetric", 2, 2, 20, 2, -1, 1),
    Sketcher.Constraint("Symmetric", 0, 2, 22, 2, -1, 1),
    Sketcher.Constraint("Symmetric", 30, 2, 36, 2, -1, 1),
    Sketcher.Constraint("Symmetric", 28, 2, 38, 2, -1, 1),
    Sketcher.Constraint("Symmetric", 26, 2, 40, 2, -1, 1),
    Sketcher.Constraint("Symmetric", 24, 2, 42, 2, -1, 1),
    Sketcher.Constraint("Symmetric", 34, 2, 44, 2, -1, 1),
    Sketcher.Constraint("Symmetric", 32, 2, 46, 2, -1, 1),
    Sketcher.Constraint("Symmetric", 1, 2, 12, 2, -2),
    Sketcher.Constraint("Symmetric", 3, 2, 14, 2, -2),
    Sketcher.Constraint("Symmetric", 25, 2, 32, 2, -2),
    Sketcher.Constraint("Symmetric", 27, 2, 34, 2, -2),
    Sketcher.Constraint("Horizontal", 5, 2, 16, 2),
    Sketcher.Constraint("Horizontal", 13, 2, 24, 2),
    Sketcher.Constraint("Horizontal", 15, 2, 26, 2),
    Sketcher.Constraint("Horizontal", 17, 2, 28, 2),
    Sketcher.Constraint("Horizontal", 19, 2, 30, 2),
    Sketcher.Constraint("Vertical", 3, 2, 4, 2),
    Sketcher.Constraint("Vertical", 2, 2, 5, 2),
    Sketcher.Constraint("Vertical", 27, 2, 28, 2),
    Sketcher.Constraint("Vertical", 26, 2, 29, 2),
    Sketcher.Constraint("Equal", 23, 25),
    Sketcher.Constraint("Equal", 2, 4),
    Sketcher.Constraint("DistanceX", 1, 1, 1, 2, 3.0),
    Sketcher.Constraint("DistanceY", 0, 1, 0, 2, 22.0),
    Sketcher.Constraint("DistanceY", 0, 2, -1, 1, 12.0),
    Sketcher.Constraint("DistanceX", 1, 2, 12, 2, 32.9),
    Sketcher.Constraint("DistanceX", 13, 2, 24, 2, 32.9),
])
pocket3 = body.newObject("PartDesign::Pocket", "Pocket002")
pocket3.Profile = sketch5
pocket3.Length = 3
pocket3.Reversed = True

sketch6 = body.newObject("Sketcher::SketchObject", "Sketch005")
sketch6.AttachmentSupport = (doc.getObject("XZ_Plane"), [""])
sketch6.MapMode = "FlatFace"
sketch6.addGeometry([
    Part.LineSegment(V(-61.5, 20, 0), V(-60.5, 20, 0)),
    Part.LineSegment(V(-60.5, 20, 0), V(-60.5, -39, 0)),
    Part.LineSegment(V(-60.5, -39, 0), V(-40.5, -39, 0)),
    Part.LineSegment(V(-40.5, -39, 0), V(-40.5, -40, 0)),
    Part.LineSegment(V(-40.5, -40, 0), V(-61.5, -40, 0)),
    Part.LineSegment(V(-61.5, -40, 0), V(-61.5, 20, 0)),
    Part.LineSegment(V(61.5, -40, 0), V(40.5, -40, 0)),
    Part.LineSegment(V(40.5, -40, 0), V(40.5, -39, 0)),
    Part.LineSegment(V(40.5, -39, 0), V(60.5, -39, 0)),
    Part.LineSegment(V(60.5, -39, 0), V(60.5, 20, 0)),
    Part.LineSegment(V(60.5, 20, 0), V(61.5, 20, 0)),
    Part.LineSegment(V(61.5, 20, 0), V(61.5, -40, 0)),
    Part.LineSegment(V(-9.25, -41, 0), V(-9.25, -39, 0)),
    Part.LineSegment(V(-9.25, -39, 0), V(-0.75, -39, 0)),
    Part.LineSegment(V(-0.75, -39, 0), V(-0.75, -41, 0)),
    Part.LineSegment(V(-0.75, -41, 0), V(-9.25, -41, 0)),
    Part.LineSegment(V(0.75, -41, 0), V(0.75, -39, 0)),
    Part.LineSegment(V(0.75, -39, 0), V(9.25, -39, 0)),
    Part.LineSegment(V(9.25, -39, 0), V(9.25, -41, 0)),
    Part.LineSegment(V(9.25, -41, 0), V(0.75, -41, 0)),
    Part.LineSegment(V(-9.25, 39, 0), V(-9.25, 41, 0)),
    Part.LineSegment(V(-9.25, 41, 0), V(-0.75, 41, 0)),
    Part.LineSegment(V(-0.75, 41, 0), V(-0.75, 39, 0)),
    Part.LineSegment(V(-0.75, 39, 0), V(-9.25, 39, 0)),
    Part.LineSegment(V(0.75, 39, 0), V(0.75, 41, 0)),
    Part.LineSegment(V(0.75, 41, 0), V(9.25, 41, 0)),
    Part.LineSegment(V(9.25, 41, 0), V(9.25, 39, 0)),
    Part.LineSegment(V(9.25, 39, 0), V(0.75, 39, 0)),
], False)
sketch6.addConstraint([
    Sketcher.Constraint("Coincident", 0, 2, 1, 1),
    Sketcher.Constraint("Coincident", 1, 2, 2, 1),
    Sketcher.Constraint("Coincident", 2, 2, 3, 1),
    Sketcher.Constraint("Coincident", 3, 2, 4, 1),
    Sketcher.Constraint("Coincident", 4, 2, 5, 1),
    Sketcher.Constraint("Coincident", 5, 2, 0, 1),
    Sketcher.Constraint("Coincident", 6, 2, 7, 1),
    Sketcher.Constraint("Coincident", 7, 2, 8, 1),
    Sketcher.Constraint("Coincident", 8, 2, 9, 1),
    Sketcher.Constraint("Coincident", 9, 2, 10, 1),
    Sketcher.Constraint("Coincident", 10, 2, 11, 1),
    Sketcher.Constraint("Coincident", 11, 2, 6, 1),
    Sketcher.Constraint("Coincident", 12, 2, 13, 1),
    Sketcher.Constraint("Coincident", 13, 2, 14, 1),
    Sketcher.Constraint("Coincident", 14, 2, 15, 1),
    Sketcher.Constraint("Coincident", 15, 2, 12, 1),
    Sketcher.Constraint("Coincident", 16, 2, 17, 1),
    Sketcher.Constraint("Coincident", 17, 2, 18, 1),
    Sketcher.Constraint("Coincident", 18, 2, 19, 1),
    Sketcher.Constraint("Coincident", 19, 2, 16, 1),
    Sketcher.Constraint("Coincident", 20, 2, 21, 1),
    Sketcher.Constraint("Coincident", 21, 2, 22, 1),
    Sketcher.Constraint("Coincident", 22, 2, 23, 1),
    Sketcher.Constraint("Coincident", 23, 2, 20, 1),
    Sketcher.Constraint("Coincident", 24, 2, 25, 1),
    Sketcher.Constraint("Coincident", 25, 2, 26, 1),
    Sketcher.Constraint("Coincident", 26, 2, 27, 1),
    Sketcher.Constraint("Coincident", 27, 2, 24, 1),
    Sketcher.Constraint("Horizontal", 0),
    Sketcher.Constraint("Vertical", 1),
    Sketcher.Constraint("Horizontal", 2),
    Sketcher.Constraint("Vertical", 3),
    Sketcher.Constraint("Horizontal", 4),
    Sketcher.Constraint("Vertical", 5),
    Sketcher.Constraint("Horizontal", 6),
    Sketcher.Constraint("Vertical", 7),
    Sketcher.Constraint("Horizontal", 8),
    Sketcher.Constraint("Vertical", 9),
    Sketcher.Constraint("Horizontal", 10),
    Sketcher.Constraint("Vertical", 11),
    Sketcher.Constraint("Vertical", 12),
    Sketcher.Constraint("Horizontal", 13),
    Sketcher.Constraint("Vertical", 14),
    Sketcher.Constraint("Horizontal", 15),
    Sketcher.Constraint("Vertical", 16),
    Sketcher.Constraint("Horizontal", 17),
    Sketcher.Constraint("Vertical", 18),
    Sketcher.Constraint("Horizontal", 19),
    Sketcher.Constraint("Vertical", 20),
    Sketcher.Constraint("Horizontal", 21),
    Sketcher.Constraint("Vertical", 22),
    Sketcher.Constraint("Horizontal", 23),
    Sketcher.Constraint("Vertical", 24),
    Sketcher.Constraint("Horizontal", 25),
    Sketcher.Constraint("Vertical", 26),
    Sketcher.Constraint("Horizontal", 27),
    Sketcher.Constraint("Symmetric", 18, 2, 20, 2, -1, 1),
    Sketcher.Constraint("Symmetric", 16, 2, 22, 2, -1, 1),
    Sketcher.Constraint("Symmetric", 14, 2, 24, 2, -1, 1),
    Sketcher.Constraint("Symmetric", 12, 2, 26, 2, -1, 1),
    Sketcher.Constraint("Symmetric", 3, 2, 6, 2, -2),
    Sketcher.Constraint("Symmetric", 1, 2, 8, 2, -2),
    Sketcher.Constraint("Symmetric", 5, 2, 10, 2, -2),
    Sketcher.Constraint("Symmetric", 13, 2, 16, 2, -2),
    Sketcher.Constraint("Symmetric", 15, 2, 18, 2, -2),
    Sketcher.Constraint("Horizontal", 8, 2, 12, 2),
    Sketcher.Constraint("Equal", 10, 3),
    Sketcher.Constraint("DistanceX", 0, 1, 0, 2, 1.0),
    Sketcher.Constraint("DistanceX", 2, 1, 2, 2, 20.0),
    Sketcher.Constraint("DistanceY", 1, 2, 1, 1, 59.0),
    Sketcher.Constraint("DistanceY", 12, 1, 12, 2, 2.0),
    Sketcher.Constraint("DistanceX", 13, 1, 13, 2, 8.5),
    Sketcher.Constraint("DistanceY", -1, 1, 0, 2, 20.0),
    Sketcher.Constraint("DistanceX", 3, 2, 6, 2, 81.0),
    Sketcher.Constraint("DistanceX", 12, 2, 16, 2, 10.0),
])
pad3 = body.newObject("PartDesign::Pad", "Pad002")
pad3.Profile = sketch6
pad3.Length = 6.5
pad3.Reversed = True

sketch7 = body.newObject("Sketcher::SketchObject", "Sketch006")
sketch7.AttachmentSupport = (doc.getObject("XZ_Plane"), [""])
sketch7.MapMode = "FlatFace"
sketch7.AttachmentOffset = App.Placement(V(0, 0, -3.5), App.Rotation())
sketch7.addGeometry([
    Part.LineSegment(V(-9.25, -41, 0), V(-9.25, -39, 0)),
    Part.LineSegment(V(-9.25, -39, 0), V(-0.75, -39, 0)),
    Part.LineSegment(V(-0.75, -39, 0), V(-0.75, -41, 0)),
    Part.LineSegment(V(-0.75, -41, 0), V(-9.25, -41, 0)),
    Part.LineSegment(V(0.75, -41, 0), V(0.75, -39, 0)),
    Part.LineSegment(V(0.75, -39, 0), V(9.25, -39, 0)),
    Part.LineSegment(V(9.25, -39, 0), V(9.25, -41, 0)),
    Part.LineSegment(V(9.25, -41, 0), V(0.75, -41, 0)),
    Part.LineSegment(V(-9.25, 39, 0), V(-9.25, 41, 0)),
    Part.LineSegment(V(-9.25, 41, 0), V(-0.75, 41, 0)),
    Part.LineSegment(V(-0.75, 41, 0), V(-0.75, 39, 0)),
    Part.LineSegment(V(-0.75, 39, 0), V(-9.25, 39, 0)),
    Part.LineSegment(V(0.75, 39, 0), V(0.75, 41, 0)),
    Part.LineSegment(V(0.75, 41, 0), V(9.25, 41, 0)),
    Part.LineSegment(V(9.25, 41, 0), V(9.25, 39, 0)),
    Part.LineSegment(V(9.25, 39, 0), V(0.75, 39, 0)),
], False)
sketch7.addConstraint([
    Sketcher.Constraint("Coincident", 0, 2, 1, 1),
    Sketcher.Constraint("Coincident", 1, 2, 2, 1),
    Sketcher.Constraint("Coincident", 2, 2, 3, 1),
    Sketcher.Constraint("Coincident", 3, 2, 0, 1),
    Sketcher.Constraint("Coincident", 4, 2, 5, 1),
    Sketcher.Constraint("Coincident", 5, 2, 6, 1),
    Sketcher.Constraint("Coincident", 6, 2, 7, 1),
    Sketcher.Constraint("Coincident", 7, 2, 4, 1),
    Sketcher.Constraint("Coincident", 8, 2, 9, 1),
    Sketcher.Constraint("Coincident", 9, 2, 10, 1),
    Sketcher.Constraint("Coincident", 10, 2, 11, 1),
    Sketcher.Constraint("Coincident", 11, 2, 8, 1),
    Sketcher.Constraint("Coincident", 12, 2, 13, 1),
    Sketcher.Constraint("Coincident", 13, 2, 14, 1),
    Sketcher.Constraint("Coincident", 14, 2, 15, 1),
    Sketcher.Constraint("Coincident", 15, 2, 12, 1),
    Sketcher.Constraint("Vertical", 0),
    Sketcher.Constraint("Horizontal", 1),
    Sketcher.Constraint("Vertical", 2),
    Sketcher.Constraint("Horizontal", 3),
    Sketcher.Constraint("Vertical", 4),
    Sketcher.Constraint("Horizontal", 5),
    Sketcher.Constraint("Vertical", 6),
    Sketcher.Constraint("Horizontal", 7),
    Sketcher.Constraint("Vertical", 8),
    Sketcher.Constraint("Horizontal", 9),
    Sketcher.Constraint("Vertical", 10),
    Sketcher.Constraint("Horizontal", 11),
    Sketcher.Constraint("Vertical", 12),
    Sketcher.Constraint("Horizontal", 13),
    Sketcher.Constraint("Vertical", 14),
    Sketcher.Constraint("Horizontal", 15),
    Sketcher.Constraint("Symmetric", 6, 2, 8, 2, -1, 1),
    Sketcher.Constraint("Symmetric", 4, 2, 10, 2, -1, 1),
    Sketcher.Constraint("Symmetric", 2, 2, 12, 2, -1, 1),
    Sketcher.Constraint("Symmetric", 0, 2, 14, 2, -1, 1),
    Sketcher.Constraint("Symmetric", 1, 2, 4, 2, -2),
    Sketcher.Constraint("Symmetric", 3, 2, 6, 2, -2),
    Sketcher.Constraint("DistanceY", 0, 1, 0, 2, 2.0),
    Sketcher.Constraint("DistanceX", 1, 1, 1, 2, 8.5),
    Sketcher.Constraint("DistanceY", 0, 2, -1, 1, 39.0),
    Sketcher.Constraint("DistanceX", 0, 2, 4, 2, 10.0),
])
pocket4 = body.newObject("PartDesign::Pocket", "Pocket003")
pocket4.Profile = sketch7
pocket4.Type = "ThroughAll"
doc.recompute()

fillet = body.newObject("PartDesign::Fillet", "Fillet")
fillet.Base = (pocket4, edges_at(pocket4, [
    (40.5, 6.5, -39.5),
    (61, 6.5, 20),
    (-61, 6.5, 20),
    (-40.5, 6.5, -39.5),
    (0.75, 3.5, -40),
    (9.25, 3.5, -40),
    (-9.25, 3.5, 40),
    (-0.75, 3.5, 40),
    (0.75, 3.5, 40),
    (9.25, 3.5, 40),
    (-9.25, 3.5, -40),
    (-0.75, 3.5, -40),
]))
fillet.Radius = 0.5

doc.recompute()
